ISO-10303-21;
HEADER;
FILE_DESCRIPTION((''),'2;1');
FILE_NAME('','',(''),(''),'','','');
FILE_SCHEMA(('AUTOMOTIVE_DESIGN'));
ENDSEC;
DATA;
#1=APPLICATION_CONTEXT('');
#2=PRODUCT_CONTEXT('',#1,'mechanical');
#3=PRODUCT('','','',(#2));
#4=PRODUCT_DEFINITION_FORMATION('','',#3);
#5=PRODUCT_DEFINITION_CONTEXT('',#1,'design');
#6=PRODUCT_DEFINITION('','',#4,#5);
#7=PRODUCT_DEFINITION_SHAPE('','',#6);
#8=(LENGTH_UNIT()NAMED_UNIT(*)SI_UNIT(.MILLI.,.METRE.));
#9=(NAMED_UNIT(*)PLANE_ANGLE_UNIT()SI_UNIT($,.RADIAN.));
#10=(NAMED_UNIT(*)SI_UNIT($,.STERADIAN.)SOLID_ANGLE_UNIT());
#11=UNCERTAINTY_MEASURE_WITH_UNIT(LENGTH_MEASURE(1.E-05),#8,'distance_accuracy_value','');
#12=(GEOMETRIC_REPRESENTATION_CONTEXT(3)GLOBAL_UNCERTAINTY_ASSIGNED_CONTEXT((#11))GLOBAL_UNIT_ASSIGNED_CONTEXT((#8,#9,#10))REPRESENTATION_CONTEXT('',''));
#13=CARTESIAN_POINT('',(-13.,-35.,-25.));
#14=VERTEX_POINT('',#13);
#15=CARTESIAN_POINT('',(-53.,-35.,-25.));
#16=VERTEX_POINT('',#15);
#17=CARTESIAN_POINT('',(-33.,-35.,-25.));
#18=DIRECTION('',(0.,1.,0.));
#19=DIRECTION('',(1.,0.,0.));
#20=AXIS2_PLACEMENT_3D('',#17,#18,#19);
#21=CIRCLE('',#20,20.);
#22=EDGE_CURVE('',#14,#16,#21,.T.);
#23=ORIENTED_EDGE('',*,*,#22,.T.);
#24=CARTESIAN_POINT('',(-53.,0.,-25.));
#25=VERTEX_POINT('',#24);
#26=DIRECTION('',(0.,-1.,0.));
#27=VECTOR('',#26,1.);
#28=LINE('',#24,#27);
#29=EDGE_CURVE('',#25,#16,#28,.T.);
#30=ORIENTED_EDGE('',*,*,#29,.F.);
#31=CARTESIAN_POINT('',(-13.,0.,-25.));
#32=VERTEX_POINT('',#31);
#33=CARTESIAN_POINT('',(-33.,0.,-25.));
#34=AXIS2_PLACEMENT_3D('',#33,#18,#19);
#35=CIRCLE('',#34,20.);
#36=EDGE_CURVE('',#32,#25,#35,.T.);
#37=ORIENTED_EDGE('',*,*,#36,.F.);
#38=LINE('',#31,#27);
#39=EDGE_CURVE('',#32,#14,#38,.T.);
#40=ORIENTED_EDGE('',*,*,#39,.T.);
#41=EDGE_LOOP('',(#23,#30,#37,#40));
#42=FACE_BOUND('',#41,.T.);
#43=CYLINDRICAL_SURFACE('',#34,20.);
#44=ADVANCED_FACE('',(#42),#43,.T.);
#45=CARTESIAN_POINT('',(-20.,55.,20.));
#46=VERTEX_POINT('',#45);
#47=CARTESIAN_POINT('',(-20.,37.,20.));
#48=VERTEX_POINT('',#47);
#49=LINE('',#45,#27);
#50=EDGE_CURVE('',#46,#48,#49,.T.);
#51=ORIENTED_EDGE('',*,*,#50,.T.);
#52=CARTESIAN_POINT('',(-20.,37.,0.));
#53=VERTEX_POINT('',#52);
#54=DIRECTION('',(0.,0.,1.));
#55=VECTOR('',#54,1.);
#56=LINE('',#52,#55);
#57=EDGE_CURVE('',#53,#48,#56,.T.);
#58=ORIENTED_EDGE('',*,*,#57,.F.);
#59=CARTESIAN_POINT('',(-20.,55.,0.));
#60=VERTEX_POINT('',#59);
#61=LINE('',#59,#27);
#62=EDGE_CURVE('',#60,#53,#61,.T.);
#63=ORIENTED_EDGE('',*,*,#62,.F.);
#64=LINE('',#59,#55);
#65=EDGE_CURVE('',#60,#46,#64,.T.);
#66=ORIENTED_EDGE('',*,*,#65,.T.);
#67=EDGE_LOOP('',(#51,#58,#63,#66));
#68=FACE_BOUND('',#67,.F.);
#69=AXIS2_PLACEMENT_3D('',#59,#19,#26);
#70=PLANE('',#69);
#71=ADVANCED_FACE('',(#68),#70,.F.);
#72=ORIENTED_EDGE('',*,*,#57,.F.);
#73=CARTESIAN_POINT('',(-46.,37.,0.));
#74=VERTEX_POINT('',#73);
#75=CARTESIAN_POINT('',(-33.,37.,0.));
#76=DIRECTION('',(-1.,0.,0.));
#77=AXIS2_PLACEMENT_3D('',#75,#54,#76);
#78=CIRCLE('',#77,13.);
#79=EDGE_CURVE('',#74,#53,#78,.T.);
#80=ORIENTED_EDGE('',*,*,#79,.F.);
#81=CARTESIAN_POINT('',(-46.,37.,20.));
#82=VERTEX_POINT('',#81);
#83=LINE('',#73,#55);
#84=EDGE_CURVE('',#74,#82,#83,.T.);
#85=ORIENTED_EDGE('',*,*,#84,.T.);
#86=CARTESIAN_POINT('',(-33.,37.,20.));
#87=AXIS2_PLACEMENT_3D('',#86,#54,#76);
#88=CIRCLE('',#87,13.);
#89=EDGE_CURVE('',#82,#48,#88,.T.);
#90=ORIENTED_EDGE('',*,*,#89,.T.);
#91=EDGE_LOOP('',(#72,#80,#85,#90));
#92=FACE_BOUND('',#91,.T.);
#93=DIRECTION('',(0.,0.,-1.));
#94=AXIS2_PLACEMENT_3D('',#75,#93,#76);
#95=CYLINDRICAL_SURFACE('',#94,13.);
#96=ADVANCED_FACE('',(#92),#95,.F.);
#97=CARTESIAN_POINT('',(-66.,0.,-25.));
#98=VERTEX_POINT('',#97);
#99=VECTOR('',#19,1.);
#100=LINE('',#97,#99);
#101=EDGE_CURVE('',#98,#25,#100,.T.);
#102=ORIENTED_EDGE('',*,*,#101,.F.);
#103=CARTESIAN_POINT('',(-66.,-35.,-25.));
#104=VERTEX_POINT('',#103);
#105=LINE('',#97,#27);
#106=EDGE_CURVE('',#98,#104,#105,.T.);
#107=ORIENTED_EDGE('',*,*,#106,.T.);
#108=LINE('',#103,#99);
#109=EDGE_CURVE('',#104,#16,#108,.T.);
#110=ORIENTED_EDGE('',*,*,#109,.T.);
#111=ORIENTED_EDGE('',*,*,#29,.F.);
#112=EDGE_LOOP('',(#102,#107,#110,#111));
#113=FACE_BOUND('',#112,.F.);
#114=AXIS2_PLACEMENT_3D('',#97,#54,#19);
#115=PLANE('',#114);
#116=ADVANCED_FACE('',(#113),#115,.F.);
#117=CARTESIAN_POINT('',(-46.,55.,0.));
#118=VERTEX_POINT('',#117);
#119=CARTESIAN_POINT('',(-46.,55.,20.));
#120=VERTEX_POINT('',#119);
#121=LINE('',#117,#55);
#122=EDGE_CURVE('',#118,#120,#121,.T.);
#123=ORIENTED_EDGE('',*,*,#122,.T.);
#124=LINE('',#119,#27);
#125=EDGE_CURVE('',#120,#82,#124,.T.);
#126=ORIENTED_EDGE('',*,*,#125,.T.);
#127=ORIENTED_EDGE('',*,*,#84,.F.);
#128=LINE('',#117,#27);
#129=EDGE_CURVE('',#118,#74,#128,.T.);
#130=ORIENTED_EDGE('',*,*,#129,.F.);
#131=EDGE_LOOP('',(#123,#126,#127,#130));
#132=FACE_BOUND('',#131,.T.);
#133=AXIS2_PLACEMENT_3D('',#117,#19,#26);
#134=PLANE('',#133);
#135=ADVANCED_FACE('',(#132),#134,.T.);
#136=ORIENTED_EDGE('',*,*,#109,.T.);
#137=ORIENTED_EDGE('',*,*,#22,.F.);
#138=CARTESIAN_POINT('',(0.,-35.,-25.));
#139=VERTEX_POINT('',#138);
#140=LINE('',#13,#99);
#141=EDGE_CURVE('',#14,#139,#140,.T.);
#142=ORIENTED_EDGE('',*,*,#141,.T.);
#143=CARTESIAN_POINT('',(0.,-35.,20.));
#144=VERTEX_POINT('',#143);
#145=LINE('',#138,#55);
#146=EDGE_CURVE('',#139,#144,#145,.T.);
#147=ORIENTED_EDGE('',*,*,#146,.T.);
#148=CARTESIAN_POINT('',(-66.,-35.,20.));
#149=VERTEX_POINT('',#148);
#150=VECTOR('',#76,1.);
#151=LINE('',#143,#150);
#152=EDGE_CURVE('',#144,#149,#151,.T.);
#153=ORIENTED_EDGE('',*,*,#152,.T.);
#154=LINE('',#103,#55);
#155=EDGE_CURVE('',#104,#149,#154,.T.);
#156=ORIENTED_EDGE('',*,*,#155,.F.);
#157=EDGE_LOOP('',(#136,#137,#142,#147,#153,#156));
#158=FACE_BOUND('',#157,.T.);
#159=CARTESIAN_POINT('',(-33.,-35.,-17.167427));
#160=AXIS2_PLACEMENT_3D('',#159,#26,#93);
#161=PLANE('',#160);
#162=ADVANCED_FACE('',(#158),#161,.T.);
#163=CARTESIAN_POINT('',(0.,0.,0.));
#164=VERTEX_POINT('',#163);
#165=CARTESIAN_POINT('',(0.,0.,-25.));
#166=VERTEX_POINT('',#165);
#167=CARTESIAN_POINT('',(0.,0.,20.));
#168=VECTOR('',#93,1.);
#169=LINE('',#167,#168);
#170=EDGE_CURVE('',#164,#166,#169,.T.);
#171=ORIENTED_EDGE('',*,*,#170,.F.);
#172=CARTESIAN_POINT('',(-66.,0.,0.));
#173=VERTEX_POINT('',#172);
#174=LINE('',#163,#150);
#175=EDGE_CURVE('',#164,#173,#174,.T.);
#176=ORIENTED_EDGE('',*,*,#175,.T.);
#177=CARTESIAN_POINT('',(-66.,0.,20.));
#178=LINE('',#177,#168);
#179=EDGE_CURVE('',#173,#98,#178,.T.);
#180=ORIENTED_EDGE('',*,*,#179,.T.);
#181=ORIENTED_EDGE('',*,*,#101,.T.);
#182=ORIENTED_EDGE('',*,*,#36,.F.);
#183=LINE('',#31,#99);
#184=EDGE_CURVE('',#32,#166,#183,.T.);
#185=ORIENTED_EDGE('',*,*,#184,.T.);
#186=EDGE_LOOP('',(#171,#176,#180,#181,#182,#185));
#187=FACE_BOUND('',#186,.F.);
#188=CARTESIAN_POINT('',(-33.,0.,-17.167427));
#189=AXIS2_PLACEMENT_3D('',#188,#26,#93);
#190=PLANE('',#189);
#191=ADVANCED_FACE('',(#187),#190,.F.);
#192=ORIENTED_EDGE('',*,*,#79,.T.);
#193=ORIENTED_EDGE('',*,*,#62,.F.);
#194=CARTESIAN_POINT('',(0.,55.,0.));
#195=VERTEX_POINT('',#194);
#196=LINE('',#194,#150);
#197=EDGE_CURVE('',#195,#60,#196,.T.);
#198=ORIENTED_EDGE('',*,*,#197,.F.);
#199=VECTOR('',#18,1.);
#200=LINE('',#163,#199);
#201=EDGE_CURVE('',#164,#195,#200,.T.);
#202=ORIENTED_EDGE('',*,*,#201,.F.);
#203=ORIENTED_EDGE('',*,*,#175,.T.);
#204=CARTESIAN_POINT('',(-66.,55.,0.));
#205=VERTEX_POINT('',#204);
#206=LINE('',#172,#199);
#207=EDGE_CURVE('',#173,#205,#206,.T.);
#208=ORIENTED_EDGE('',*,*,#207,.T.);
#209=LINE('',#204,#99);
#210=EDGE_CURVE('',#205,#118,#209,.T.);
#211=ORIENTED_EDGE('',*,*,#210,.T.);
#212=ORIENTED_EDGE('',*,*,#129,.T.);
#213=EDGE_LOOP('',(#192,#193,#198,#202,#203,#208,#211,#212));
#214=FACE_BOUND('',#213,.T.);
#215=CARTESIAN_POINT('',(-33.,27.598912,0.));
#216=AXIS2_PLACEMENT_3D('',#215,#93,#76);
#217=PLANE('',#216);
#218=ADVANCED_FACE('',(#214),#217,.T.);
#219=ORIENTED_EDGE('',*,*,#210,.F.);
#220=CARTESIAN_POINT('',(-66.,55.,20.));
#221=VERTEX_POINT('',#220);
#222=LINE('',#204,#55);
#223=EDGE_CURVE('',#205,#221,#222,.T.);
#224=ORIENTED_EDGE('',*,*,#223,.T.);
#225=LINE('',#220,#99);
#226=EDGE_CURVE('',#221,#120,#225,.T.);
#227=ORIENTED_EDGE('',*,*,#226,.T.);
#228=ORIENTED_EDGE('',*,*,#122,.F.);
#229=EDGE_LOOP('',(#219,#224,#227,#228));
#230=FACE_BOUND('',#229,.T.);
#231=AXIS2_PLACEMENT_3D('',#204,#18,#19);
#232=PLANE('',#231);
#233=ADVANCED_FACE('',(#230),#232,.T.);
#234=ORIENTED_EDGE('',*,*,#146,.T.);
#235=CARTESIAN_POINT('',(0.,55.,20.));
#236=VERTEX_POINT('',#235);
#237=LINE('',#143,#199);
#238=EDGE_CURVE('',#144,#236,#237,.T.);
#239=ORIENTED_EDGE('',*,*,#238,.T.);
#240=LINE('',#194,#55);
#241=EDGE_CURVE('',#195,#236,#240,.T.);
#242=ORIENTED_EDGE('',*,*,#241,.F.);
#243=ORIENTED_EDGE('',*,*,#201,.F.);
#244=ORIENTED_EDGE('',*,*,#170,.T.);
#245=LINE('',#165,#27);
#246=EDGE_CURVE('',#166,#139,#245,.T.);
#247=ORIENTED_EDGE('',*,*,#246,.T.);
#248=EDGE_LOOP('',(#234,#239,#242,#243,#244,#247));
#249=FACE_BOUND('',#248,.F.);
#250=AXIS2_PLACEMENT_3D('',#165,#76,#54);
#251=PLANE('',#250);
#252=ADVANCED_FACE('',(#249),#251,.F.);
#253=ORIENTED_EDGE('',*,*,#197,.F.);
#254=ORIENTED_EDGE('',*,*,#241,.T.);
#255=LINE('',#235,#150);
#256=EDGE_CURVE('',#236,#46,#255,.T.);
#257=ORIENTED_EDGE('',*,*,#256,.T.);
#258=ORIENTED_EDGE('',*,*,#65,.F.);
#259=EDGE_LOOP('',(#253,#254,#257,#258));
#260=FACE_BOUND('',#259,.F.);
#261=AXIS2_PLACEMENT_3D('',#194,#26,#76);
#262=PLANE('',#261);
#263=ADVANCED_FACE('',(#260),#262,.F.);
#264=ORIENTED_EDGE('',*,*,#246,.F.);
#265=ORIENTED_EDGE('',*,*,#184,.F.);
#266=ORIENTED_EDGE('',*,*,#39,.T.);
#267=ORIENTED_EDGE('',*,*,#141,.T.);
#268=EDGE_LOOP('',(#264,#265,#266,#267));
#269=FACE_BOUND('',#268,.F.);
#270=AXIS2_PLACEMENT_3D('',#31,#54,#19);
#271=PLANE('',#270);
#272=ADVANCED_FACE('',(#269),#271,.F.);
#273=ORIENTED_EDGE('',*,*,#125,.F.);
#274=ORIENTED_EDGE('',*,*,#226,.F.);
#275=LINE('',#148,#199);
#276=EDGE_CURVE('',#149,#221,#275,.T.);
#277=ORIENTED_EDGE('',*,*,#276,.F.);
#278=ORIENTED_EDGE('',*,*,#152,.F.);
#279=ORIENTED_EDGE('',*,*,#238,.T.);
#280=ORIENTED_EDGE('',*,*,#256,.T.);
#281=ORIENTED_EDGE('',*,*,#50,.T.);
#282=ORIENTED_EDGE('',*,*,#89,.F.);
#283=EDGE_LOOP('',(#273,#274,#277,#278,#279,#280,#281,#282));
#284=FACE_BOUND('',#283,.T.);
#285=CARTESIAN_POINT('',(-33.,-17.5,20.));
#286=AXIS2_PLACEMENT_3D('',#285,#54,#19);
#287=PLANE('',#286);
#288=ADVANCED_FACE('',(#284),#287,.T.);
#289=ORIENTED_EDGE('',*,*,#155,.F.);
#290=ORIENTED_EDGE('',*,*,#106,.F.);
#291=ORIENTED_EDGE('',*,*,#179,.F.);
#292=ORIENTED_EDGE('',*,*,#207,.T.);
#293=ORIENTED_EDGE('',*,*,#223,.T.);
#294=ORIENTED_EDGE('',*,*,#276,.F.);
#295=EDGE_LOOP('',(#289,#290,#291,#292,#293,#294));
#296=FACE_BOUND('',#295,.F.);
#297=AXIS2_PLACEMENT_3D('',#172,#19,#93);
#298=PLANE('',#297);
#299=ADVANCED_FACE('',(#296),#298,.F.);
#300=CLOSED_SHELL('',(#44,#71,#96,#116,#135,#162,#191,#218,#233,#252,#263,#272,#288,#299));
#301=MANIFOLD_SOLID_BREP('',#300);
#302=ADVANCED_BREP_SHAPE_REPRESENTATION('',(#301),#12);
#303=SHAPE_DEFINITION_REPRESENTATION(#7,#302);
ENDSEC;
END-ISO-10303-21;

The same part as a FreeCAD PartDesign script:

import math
import FreeCAD as App
import Part
import Sketcher

V = App.Vector

doc = App.newDocument("Part")
params = doc.addObject("Spreadsheet::Sheet", "Params")
for row, (alias, value) in enumerate([
    ("sketch1_radius", "20 mm"),
    ("sketch1_width", "13 mm"),
    ("sketch1_height", "25 mm"),
    ("pad1_length", "35 mm"),
    ("sketch2_width", "66 mm"),
    ("sketch2_height", "35 mm"),
    ("pad2_length", "20 mm"),
    ("sketch3_radius", "13 mm"),
    ("sketch3_width", "66 mm"),
    ("sketch3_height", "55 mm"),
    ("sketch3_height2", "18 mm"),
    ("pad3_length", "20 mm"),
], start=1):
    params.set(f"A{row}", alias)
    params.set(f"B{row}", "=" + value)
    params.setAlias(f"B{row}", alias)

body = doc.addObject("PartDesign::Body", "Body")

# Sketch on XZ plane
sketch1 = body.newObject("Sketcher::SketchObject", "Sketch")
sketch1.AttachmentSupport = (doc.getObject("XZ_Plane"), [""])
sketch1.MapMode = "FlatFace"
sketch1.addGeometry([
    Part.LineSegment(V(-66, 0, 0), V(-66, -25, 0)),  # 0
    Part.LineSegment(V(-66, -25, 0), V(-53, -25, 0)),  # 1
    Part.ArcOfCircle(Part.Circle(V(-33, -25, 0), V(0, 0, 1), 20), math.radians(180), math.radians(360)),  # 2
    Part.LineSegment(V(-13, -25, 0), V(0, -25, 0)),  # 3
    Part.LineSegment(V(0, -25, 0), V(0, 0, 0)),  # 4
    Part.LineSegment(V(0, 0, 0), V(-66, 0, 0)),  # 5
], False)
sketch1.addConstraint([
    Sketcher.Constraint("Coincident", 0, 2, 1, 1),
    Sketcher.Constraint("Coincident", 1, 2, 2, 1),
    Sketcher.Constraint("Coincident", 2, 2, 3, 1),
    Sketcher.Constraint("Coincident", 3, 2, 4, 1),
    Sketcher.Constraint("Coincident", 4, 2, 5, 1),
    Sketcher.Constraint("Coincident", 5, 2, 0, 1),
    Sketcher.Constraint("Vertical", 0),
    Sketcher.Constraint("Horizontal", 1),
    Sketcher.Constraint("Horizontal", 3),
    Sketcher.Constraint("Vertical", 4),
    Sketcher.Constraint("Horizontal", 5),
    Sketcher.Constraint("Coincident", 4, 2, -1, 1),
    Sketcher.Constraint("Horizontal", 2, 3, 0, 2),
    Sketcher.Constraint("Horizontal", 1, 2, 2, 2),
    Sketcher.Constraint("Equal", 1, 3),
    Sketcher.Constraint("Radius", 2, 20.0),
    Sketcher.Constraint("DistanceX", 1, 1, 1, 2, 13.0),
    Sketcher.Constraint("DistanceY", 0, 2, 0, 1, 25.0),
])
sketch1.setExpression("Constraints[15]", "Params.sketch1_radius")
sketch1.setExpression("Constraints[16]", "Params.sketch1_width")
sketch1.setExpression("Constraints[17]", "Params.sketch1_height")
pad1 = body.newObject("PartDesign::Pad", "Pad")
pad1.Profile = sketch1
pad1.setExpression("Length", "Params.pad1_length")

# Sketch on XY plane
sketch2 = body.newObject("Sketcher::SketchObject", "Sketch001")
sketch2.AttachmentSupport = (doc.getObject("XY_Plane"), [""])
sketch2.MapMode = "FlatFace"
sketch2.addGeometry([
    Part.LineSegment(V(0, 0, 0), V(0, -35, 0)),
    Part.LineSegment(V(0, -35, 0), V(-66, -35, 0)),
    Part.LineSegment(V(-66, -35, 0), V(-66, 0, 0)),
    Part.LineSegment(V(-66, 0, 0), V(0, 0, 0)),
], False)
sketch2.addConstraint([
    Sketcher.Constraint("Coincident", 0, 2, 1, 1),
    Sketcher.Constraint("Coincident", 1, 2, 2, 1),
    Sketcher.Constraint("Coincident", 2, 2, 3, 1),
    Sketcher.Constraint("Coincident", 3, 2, 0, 1),
    Sketcher.Constraint("Vertical", 0),
    Sketcher.Constraint("Horizontal", 1),
    Sketcher.Constraint("Vertical", 2),
    Sketcher.Constraint("Horizontal", 3),
    Sketcher.Constraint("Coincident", 3, 2, -1, 1),
    Sketcher.Constraint("DistanceX", 1, 2, 1, 1, 66.0),
    Sketcher.Constraint("DistanceY", 0, 2, 0, 1, 35.0),
])
sketch2.setExpression("Constraints[9]", "Params.sketch2_width")
sketch2.setExpression("Constraints[10]", "Params.sketch2_height")
pad2 = body.newObject("PartDesign::Pad", "Pad001")
pad2.Profile = sketch2
pad2.setExpression("Length", "Params.pad2_length")

# Sketch on XY plane
sketch3 = body.newObject("Sketcher::SketchObject", "Sketch002")
sketch3.AttachmentSupport = (doc.getObject("XY_Plane"), [""])
sketch3.MapMode = "FlatFace"
sketch3.addGeometry([
    Part.LineSegment(V(0, 0, 0), V(-66, 0, 0)),  # 0
    Part.LineSegment(V(-66, 0, 0), V(-66, 55, 0)),  # 1
    Part.LineSegment(V(-66, 55, 0), V(-46, 55, 0)),  # 2
    Part.LineSegment(V(-46, 55, 0), V(-46, 37, 0)),  # 3
    Part.ArcOfCircle(Part.Circle(V(-33, 37, 0), V(0, 0, 1), 13), math.radians(180), math.radians(360)),  # 4
    Part.LineSegment(V(-20, 37, 0), V(-20, 55, 0)),  # 5
    Part.LineSegment(V(-20, 55, 0), V(0, 55, 0)),  # 6
    Part.LineSegment(V(0, 55, 0), V(0, 0, 0)),  # 7
], False)
sketch3.addConstraint([
    Sketcher.Constraint("Coincident", 0, 2, 1, 1),
    Sketcher.Constraint("Coincident", 1, 2, 2, 1),
    Sketcher.Constraint("Coincident", 2, 2, 3, 1),
    Sketcher.Constraint("Tangent", 3, 2, 4, 1),
    Sketcher.Constraint("Tangent", 4, 2, 5, 1),
    Sketcher.Constraint("Coincident", 5, 2, 6, 1),
    Sketcher.Constraint("Coincident", 6, 2, 7, 1),
    Sketcher.Constraint("Coincident", 7, 2, 0, 1),
    Sketcher.Constraint("Horizontal", 0),
    Sketcher.Constraint("Vertical", 1),
    Sketcher.Constraint("Horizontal", 2),
    Sketcher.Constraint("Vertical", 3),
    Sketcher.Constraint("Vertical", 5),
    Sketcher.Constraint("Horizontal", 6),
    Sketcher.Constraint("Vertical", 7),
    Sketcher.Constraint("Coincident", 7, 2, -1, 1),
    Sketcher.Constraint("Horizontal", 2, 2, 5, 2),
    Sketcher.Constraint("Equal", 2, 6),
    Sketcher.Constraint("Radius", 4, 13.0),
    Sketcher.Constraint("DistanceX", 0, 2, 0, 1, 66.0),
    Sketcher.Constraint("DistanceY", 1, 1, 1, 2, 55.0),
    Sketcher.Constraint("DistanceY", 3, 2, 3, 1, 18.0),
])
sketch3.setExpression("Constraints[18]", "Params.sketch3_radius")
sketch3.setExpression("Constraints[19]", "Params.sketch3_width")
sketch3.setExpression("Constraints[20]", "Params.sketch3_height")
sketch3.setExpression("Constraints[21]", "Params.sketch3_height2")
pad3 = body.newObject("PartDesign::Pad", "Pad002")
pad3.Profile = sketch3
pad3.setExpression("Length", "Params.pad3_length")

doc.recompute()
